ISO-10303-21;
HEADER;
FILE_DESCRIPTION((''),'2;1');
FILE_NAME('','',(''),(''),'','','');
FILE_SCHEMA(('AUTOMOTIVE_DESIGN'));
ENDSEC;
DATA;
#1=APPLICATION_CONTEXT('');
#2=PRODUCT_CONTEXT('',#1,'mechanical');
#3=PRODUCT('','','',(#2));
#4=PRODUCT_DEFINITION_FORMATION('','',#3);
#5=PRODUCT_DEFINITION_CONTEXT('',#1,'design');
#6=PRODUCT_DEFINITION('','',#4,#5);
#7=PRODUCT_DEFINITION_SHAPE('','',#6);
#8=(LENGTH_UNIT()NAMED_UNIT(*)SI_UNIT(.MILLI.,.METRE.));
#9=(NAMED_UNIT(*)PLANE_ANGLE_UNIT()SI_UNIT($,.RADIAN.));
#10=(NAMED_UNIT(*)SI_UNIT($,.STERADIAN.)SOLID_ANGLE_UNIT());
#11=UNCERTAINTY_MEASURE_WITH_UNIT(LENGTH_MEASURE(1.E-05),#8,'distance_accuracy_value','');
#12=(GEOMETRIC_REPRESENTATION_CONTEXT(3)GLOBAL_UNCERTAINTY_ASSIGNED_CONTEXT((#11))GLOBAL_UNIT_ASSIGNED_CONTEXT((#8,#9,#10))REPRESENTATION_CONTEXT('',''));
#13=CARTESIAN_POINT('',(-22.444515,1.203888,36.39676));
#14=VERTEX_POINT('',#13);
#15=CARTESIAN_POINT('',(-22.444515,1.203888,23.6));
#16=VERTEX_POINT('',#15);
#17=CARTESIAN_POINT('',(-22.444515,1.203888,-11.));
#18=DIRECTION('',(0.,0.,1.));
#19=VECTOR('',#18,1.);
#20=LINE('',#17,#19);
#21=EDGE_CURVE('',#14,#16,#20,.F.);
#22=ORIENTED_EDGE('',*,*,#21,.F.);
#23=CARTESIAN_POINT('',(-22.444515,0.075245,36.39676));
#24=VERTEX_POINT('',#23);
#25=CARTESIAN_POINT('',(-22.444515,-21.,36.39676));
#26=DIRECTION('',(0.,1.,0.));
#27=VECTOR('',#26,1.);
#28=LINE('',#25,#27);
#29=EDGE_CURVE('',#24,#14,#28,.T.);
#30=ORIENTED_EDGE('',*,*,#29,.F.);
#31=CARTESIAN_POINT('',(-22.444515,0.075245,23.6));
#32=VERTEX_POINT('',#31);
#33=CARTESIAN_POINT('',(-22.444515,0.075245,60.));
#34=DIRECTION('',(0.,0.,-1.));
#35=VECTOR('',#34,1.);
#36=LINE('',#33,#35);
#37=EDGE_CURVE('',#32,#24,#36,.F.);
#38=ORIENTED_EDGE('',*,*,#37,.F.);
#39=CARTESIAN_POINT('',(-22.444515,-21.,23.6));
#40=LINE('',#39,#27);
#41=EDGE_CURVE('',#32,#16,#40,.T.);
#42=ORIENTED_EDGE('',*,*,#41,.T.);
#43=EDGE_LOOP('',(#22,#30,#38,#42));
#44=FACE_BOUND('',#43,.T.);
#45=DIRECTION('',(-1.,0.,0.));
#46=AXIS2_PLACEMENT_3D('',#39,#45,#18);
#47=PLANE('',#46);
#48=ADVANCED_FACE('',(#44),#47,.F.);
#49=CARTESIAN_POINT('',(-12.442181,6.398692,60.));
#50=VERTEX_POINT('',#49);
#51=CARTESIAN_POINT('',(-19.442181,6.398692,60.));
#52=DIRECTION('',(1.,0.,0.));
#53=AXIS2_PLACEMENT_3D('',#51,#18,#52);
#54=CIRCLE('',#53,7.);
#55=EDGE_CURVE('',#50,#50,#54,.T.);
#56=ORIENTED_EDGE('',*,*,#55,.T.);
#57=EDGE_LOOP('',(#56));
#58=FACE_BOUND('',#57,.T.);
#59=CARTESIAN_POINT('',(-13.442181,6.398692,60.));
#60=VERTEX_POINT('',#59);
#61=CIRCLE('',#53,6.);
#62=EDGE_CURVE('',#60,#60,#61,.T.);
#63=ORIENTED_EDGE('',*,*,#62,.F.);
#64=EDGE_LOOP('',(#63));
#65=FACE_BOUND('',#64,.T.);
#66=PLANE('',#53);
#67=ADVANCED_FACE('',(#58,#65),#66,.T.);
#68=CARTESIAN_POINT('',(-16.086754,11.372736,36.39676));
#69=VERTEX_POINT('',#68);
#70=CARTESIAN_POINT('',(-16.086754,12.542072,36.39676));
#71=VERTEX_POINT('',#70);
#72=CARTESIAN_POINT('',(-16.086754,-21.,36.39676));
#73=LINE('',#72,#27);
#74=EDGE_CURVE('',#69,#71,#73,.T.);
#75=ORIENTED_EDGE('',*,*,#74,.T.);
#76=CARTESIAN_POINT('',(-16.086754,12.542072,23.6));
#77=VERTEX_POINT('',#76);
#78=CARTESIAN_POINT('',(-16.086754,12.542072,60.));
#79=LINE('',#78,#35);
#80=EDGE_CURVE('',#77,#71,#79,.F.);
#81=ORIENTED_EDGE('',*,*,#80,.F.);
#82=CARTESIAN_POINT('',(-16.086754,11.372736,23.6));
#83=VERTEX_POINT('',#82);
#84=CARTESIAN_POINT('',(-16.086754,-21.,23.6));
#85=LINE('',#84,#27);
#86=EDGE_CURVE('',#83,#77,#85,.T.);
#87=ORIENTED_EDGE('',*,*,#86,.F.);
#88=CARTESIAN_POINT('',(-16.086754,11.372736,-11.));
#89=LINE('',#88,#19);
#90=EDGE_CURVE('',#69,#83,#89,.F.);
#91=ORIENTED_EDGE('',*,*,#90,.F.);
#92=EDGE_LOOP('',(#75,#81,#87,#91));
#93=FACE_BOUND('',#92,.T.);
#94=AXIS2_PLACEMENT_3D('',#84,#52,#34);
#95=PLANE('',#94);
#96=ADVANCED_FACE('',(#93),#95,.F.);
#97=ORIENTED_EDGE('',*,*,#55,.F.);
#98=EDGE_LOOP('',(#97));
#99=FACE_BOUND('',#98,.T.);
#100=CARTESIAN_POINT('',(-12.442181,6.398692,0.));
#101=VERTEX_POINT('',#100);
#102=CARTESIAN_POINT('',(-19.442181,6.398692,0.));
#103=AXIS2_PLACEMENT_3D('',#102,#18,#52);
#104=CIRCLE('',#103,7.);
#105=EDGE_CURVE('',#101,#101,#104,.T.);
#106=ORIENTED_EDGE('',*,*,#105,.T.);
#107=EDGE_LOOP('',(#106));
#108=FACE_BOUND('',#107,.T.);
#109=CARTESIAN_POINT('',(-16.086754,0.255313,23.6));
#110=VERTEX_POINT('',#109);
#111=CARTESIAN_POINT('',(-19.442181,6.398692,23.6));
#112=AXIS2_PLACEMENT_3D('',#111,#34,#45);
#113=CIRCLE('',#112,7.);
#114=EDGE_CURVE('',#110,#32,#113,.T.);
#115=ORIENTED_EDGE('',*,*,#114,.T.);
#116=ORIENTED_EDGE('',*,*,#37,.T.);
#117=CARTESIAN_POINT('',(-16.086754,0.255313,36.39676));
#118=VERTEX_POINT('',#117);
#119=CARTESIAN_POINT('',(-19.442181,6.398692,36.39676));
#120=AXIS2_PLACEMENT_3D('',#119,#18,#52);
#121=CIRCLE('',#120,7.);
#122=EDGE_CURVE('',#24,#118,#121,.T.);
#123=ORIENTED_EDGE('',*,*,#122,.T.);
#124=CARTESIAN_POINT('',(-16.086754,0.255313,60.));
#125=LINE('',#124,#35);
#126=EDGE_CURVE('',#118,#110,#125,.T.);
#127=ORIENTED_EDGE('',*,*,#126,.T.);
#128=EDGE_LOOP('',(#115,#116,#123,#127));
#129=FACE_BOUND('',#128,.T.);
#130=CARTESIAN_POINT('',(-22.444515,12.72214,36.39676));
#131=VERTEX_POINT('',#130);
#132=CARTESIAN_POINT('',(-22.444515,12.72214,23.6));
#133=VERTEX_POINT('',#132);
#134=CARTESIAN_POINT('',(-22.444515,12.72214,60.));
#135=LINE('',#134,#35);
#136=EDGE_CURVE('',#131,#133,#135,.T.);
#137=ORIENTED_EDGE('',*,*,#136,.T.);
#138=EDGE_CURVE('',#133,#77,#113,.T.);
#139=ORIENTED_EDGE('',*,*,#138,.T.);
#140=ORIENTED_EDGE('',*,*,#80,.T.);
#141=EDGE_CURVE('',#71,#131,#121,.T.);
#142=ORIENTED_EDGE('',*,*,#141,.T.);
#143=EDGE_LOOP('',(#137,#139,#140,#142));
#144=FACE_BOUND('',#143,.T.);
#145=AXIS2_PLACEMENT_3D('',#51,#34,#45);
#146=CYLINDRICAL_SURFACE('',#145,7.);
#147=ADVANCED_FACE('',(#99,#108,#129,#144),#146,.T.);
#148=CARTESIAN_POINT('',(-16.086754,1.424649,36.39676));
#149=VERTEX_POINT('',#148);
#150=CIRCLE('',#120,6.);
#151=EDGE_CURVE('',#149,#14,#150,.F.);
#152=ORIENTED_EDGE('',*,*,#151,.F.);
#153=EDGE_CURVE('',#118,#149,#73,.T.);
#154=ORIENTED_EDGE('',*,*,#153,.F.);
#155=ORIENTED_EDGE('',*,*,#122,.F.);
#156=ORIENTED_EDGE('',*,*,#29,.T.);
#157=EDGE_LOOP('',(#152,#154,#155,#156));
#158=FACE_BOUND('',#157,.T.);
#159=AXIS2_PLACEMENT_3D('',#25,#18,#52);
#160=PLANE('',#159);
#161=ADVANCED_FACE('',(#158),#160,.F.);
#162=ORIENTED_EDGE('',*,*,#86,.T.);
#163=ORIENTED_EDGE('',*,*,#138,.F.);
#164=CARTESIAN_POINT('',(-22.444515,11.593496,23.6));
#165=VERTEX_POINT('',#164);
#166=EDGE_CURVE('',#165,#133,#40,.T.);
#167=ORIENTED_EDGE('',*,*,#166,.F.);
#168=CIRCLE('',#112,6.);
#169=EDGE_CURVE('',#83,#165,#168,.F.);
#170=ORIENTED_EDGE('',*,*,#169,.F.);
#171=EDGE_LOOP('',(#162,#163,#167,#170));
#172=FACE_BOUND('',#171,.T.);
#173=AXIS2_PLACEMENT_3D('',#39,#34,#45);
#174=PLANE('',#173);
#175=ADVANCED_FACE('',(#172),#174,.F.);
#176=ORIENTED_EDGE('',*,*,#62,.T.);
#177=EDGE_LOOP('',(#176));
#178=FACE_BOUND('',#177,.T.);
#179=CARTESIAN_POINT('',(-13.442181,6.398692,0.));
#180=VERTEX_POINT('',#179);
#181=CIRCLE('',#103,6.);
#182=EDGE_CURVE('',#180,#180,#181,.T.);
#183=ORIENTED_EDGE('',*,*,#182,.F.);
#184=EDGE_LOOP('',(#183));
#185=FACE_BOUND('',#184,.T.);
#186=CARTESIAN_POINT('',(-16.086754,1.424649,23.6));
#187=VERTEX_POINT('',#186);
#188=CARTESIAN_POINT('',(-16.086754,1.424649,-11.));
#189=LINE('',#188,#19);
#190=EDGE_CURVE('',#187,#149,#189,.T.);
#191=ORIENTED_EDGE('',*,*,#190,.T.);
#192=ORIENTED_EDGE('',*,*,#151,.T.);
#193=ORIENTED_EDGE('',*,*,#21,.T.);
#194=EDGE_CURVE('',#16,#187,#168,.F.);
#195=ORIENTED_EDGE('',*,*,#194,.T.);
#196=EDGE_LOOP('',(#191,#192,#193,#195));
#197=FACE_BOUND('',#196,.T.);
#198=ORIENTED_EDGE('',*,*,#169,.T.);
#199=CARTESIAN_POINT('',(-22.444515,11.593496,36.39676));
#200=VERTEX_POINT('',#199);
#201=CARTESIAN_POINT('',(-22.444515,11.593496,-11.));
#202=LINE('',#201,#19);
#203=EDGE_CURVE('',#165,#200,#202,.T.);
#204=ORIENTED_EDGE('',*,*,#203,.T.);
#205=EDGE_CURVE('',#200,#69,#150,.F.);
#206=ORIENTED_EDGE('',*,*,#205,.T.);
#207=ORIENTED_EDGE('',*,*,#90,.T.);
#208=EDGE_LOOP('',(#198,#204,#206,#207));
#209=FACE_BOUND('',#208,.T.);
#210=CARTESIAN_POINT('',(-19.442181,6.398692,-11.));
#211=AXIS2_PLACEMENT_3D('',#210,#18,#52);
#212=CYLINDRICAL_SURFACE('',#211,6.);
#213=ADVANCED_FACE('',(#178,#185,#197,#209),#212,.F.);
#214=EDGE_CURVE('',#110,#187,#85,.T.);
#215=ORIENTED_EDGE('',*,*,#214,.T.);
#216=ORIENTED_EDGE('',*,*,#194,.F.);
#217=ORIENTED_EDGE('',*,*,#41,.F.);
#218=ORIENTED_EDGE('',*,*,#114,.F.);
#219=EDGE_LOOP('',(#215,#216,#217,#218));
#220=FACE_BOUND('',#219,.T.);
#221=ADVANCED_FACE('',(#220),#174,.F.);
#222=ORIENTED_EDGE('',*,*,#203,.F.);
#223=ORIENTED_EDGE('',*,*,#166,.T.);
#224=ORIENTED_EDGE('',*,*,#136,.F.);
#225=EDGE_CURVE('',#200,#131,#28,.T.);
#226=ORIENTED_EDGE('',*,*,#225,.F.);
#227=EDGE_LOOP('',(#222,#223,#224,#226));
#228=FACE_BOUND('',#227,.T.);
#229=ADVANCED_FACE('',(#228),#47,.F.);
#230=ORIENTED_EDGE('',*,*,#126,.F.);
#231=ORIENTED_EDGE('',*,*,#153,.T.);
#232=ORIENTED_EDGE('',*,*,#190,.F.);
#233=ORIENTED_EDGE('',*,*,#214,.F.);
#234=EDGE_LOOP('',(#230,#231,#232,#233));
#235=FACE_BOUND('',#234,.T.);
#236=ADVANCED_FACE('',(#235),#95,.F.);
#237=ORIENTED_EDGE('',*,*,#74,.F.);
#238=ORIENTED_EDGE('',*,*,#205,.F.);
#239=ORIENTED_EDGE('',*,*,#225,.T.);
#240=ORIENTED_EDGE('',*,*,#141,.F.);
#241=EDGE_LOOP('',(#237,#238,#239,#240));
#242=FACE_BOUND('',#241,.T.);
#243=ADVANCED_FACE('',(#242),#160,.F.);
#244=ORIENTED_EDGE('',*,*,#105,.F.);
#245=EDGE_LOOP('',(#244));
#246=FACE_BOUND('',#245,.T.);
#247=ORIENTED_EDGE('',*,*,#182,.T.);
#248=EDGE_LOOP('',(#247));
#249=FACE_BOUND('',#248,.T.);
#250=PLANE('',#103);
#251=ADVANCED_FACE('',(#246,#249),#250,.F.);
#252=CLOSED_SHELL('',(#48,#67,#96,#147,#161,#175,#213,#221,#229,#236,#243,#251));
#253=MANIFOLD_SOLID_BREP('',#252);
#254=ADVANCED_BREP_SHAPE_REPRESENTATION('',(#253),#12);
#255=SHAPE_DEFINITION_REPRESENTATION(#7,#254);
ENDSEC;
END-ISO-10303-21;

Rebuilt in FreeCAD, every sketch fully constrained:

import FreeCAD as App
import Part
import Sketcher

V = App.Vector
Q = App.Units.Quantity


def add_polygon(sketch, points):
    """Adds a closed chain of lines whose ends are joined by coincident constraints."""
    first, n = sketch.GeometryCount, len(points)
    for a, b in zip(points, points[1:] + points[:1]):
        sketch.addGeometry(Part.LineSegment(App.Vector(*a, 0), App.Vector(*b, 0)), False)
    for i in range(n):
        sketch.addConstraint(Sketcher.Constraint("Coincident", first + i, 2, first + (i + 1) % n, 1))

doc = App.newDocument("Part")
params = doc.addObject("Spreadsheet::Sheet", "Params")
for row, (alias, value) in enumerate([
    ("sketch1_diameter", "14 mm"),
    ("pad1_length", "60 mm"),
    ("sketch2_diameter", "12 mm"),
    ("pocket1_length", "71 mm"),
], start=1):
    params.set(f"A{row}", alias)
    params.set(f"B{row}", "=" + value)
    params.setAlias(f"B{row}", alias)

body = doc.addObject("PartDesign::Body", "Body")

sketch1 = doc.addObject("Sketcher::SketchObject", "Sketch")
body.addObject(sketch1)
sketch1.AttachmentSupport = (doc.XY_Plane, [""])
sketch1.MapMode = "FlatFace"
sketch1.addGeometry(Part.Circle(V(-19, 6, 0), V(0, 0, 1), 7), False)
sketch1.addConstraint([
    Sketcher.Constraint("Diameter", 0, Q("14 mm")),
    Sketcher.Constraint("DistanceX", 0, 3, -1, 1, Q("19.442181 mm")),
    Sketcher.Constraint("DistanceY", -1, 1, 0, 3, Q("6.398692 mm")),
])
sketch1.setExpression("Constraints[0]", "Params.sketch1_diameter")
pad1 = doc.addObject("PartDesign::Pad", "Pad")
body.addObject(pad1)
pad1.Profile = sketch1
pad1.setExpression("Length", "Params.pad1_length")

sketch2 = doc.addObject("Sketcher::SketchObject", "Sketch001")
body.addObject(sketch2)
sketch2.AttachmentSupport = (doc.XY_Plane, [""])
sketch2.MapMode = "FlatFace"
sketch2.AttachmentOffset = App.Placement(V(0, 0, 60), App.Rotation())
sketch2.addGeometry(Part.Circle(V(-19, 6, 0), V(0, 0, 1), 6), False)
sketch2.addConstraint([
    Sketcher.Constraint("Diameter", 0, Q("12 mm")),
    Sketcher.Constraint("DistanceX", 0, 3, -1, 1, Q("19.442181 mm")),
    Sketcher.Constraint("DistanceY", -1, 1, 0, 3, Q("6.398692 mm")),
])
sketch2.setExpression("Constraints[0]", "Params.sketch2_diameter")
pocket1 = doc.addObject("PartDesign::Pocket", "Pocket")
body.addObject(pocket1)
pocket1.Profile = sketch2
pocket1.setExpression("Length", "Params.pocket1_length")

sketch3 = doc.addObject("Sketcher::SketchObject", "Sketch002")
body.addObject(sketch3)
sketch3.AttachmentSupport = (doc.XZ_Plane, [""])
sketch3.MapMode = "FlatFace"
add_polygon(sketch3, [(-22, 24), (-22, 36), (-16, 36), (-16, 24)])
sketch3.addConstraint([
    Sketcher.Constraint("Vertical", 0),
    Sketcher.Constraint("Horizontal", 1),
    Sketcher.Constraint("Vertical", 2),
    Sketcher.Constraint("Horizontal", 3),
    Sketcher.Constraint("DistanceY", -1, 1, 2, 2, Q("23.6 mm")),
    Sketcher.Constraint("DistanceX", 1, 1, 1, 2, Q("6.357761 mm")),
    Sketcher.Constraint("DistanceY", 0, 1, 0, 2, Q("12.79676 mm")),
    Sketcher.Constraint("DistanceX", 0, 2, -1, 1, Q("22.444515 mm")),
])
pocket2 = doc.addObject("PartDesign::Pocket", "Pocket001")
body.addObject(pocket2)
pocket2.Profile = sketch3
pocket2.Type = "ThroughAll"
pocket2.Midplane = True

doc.recompute()
